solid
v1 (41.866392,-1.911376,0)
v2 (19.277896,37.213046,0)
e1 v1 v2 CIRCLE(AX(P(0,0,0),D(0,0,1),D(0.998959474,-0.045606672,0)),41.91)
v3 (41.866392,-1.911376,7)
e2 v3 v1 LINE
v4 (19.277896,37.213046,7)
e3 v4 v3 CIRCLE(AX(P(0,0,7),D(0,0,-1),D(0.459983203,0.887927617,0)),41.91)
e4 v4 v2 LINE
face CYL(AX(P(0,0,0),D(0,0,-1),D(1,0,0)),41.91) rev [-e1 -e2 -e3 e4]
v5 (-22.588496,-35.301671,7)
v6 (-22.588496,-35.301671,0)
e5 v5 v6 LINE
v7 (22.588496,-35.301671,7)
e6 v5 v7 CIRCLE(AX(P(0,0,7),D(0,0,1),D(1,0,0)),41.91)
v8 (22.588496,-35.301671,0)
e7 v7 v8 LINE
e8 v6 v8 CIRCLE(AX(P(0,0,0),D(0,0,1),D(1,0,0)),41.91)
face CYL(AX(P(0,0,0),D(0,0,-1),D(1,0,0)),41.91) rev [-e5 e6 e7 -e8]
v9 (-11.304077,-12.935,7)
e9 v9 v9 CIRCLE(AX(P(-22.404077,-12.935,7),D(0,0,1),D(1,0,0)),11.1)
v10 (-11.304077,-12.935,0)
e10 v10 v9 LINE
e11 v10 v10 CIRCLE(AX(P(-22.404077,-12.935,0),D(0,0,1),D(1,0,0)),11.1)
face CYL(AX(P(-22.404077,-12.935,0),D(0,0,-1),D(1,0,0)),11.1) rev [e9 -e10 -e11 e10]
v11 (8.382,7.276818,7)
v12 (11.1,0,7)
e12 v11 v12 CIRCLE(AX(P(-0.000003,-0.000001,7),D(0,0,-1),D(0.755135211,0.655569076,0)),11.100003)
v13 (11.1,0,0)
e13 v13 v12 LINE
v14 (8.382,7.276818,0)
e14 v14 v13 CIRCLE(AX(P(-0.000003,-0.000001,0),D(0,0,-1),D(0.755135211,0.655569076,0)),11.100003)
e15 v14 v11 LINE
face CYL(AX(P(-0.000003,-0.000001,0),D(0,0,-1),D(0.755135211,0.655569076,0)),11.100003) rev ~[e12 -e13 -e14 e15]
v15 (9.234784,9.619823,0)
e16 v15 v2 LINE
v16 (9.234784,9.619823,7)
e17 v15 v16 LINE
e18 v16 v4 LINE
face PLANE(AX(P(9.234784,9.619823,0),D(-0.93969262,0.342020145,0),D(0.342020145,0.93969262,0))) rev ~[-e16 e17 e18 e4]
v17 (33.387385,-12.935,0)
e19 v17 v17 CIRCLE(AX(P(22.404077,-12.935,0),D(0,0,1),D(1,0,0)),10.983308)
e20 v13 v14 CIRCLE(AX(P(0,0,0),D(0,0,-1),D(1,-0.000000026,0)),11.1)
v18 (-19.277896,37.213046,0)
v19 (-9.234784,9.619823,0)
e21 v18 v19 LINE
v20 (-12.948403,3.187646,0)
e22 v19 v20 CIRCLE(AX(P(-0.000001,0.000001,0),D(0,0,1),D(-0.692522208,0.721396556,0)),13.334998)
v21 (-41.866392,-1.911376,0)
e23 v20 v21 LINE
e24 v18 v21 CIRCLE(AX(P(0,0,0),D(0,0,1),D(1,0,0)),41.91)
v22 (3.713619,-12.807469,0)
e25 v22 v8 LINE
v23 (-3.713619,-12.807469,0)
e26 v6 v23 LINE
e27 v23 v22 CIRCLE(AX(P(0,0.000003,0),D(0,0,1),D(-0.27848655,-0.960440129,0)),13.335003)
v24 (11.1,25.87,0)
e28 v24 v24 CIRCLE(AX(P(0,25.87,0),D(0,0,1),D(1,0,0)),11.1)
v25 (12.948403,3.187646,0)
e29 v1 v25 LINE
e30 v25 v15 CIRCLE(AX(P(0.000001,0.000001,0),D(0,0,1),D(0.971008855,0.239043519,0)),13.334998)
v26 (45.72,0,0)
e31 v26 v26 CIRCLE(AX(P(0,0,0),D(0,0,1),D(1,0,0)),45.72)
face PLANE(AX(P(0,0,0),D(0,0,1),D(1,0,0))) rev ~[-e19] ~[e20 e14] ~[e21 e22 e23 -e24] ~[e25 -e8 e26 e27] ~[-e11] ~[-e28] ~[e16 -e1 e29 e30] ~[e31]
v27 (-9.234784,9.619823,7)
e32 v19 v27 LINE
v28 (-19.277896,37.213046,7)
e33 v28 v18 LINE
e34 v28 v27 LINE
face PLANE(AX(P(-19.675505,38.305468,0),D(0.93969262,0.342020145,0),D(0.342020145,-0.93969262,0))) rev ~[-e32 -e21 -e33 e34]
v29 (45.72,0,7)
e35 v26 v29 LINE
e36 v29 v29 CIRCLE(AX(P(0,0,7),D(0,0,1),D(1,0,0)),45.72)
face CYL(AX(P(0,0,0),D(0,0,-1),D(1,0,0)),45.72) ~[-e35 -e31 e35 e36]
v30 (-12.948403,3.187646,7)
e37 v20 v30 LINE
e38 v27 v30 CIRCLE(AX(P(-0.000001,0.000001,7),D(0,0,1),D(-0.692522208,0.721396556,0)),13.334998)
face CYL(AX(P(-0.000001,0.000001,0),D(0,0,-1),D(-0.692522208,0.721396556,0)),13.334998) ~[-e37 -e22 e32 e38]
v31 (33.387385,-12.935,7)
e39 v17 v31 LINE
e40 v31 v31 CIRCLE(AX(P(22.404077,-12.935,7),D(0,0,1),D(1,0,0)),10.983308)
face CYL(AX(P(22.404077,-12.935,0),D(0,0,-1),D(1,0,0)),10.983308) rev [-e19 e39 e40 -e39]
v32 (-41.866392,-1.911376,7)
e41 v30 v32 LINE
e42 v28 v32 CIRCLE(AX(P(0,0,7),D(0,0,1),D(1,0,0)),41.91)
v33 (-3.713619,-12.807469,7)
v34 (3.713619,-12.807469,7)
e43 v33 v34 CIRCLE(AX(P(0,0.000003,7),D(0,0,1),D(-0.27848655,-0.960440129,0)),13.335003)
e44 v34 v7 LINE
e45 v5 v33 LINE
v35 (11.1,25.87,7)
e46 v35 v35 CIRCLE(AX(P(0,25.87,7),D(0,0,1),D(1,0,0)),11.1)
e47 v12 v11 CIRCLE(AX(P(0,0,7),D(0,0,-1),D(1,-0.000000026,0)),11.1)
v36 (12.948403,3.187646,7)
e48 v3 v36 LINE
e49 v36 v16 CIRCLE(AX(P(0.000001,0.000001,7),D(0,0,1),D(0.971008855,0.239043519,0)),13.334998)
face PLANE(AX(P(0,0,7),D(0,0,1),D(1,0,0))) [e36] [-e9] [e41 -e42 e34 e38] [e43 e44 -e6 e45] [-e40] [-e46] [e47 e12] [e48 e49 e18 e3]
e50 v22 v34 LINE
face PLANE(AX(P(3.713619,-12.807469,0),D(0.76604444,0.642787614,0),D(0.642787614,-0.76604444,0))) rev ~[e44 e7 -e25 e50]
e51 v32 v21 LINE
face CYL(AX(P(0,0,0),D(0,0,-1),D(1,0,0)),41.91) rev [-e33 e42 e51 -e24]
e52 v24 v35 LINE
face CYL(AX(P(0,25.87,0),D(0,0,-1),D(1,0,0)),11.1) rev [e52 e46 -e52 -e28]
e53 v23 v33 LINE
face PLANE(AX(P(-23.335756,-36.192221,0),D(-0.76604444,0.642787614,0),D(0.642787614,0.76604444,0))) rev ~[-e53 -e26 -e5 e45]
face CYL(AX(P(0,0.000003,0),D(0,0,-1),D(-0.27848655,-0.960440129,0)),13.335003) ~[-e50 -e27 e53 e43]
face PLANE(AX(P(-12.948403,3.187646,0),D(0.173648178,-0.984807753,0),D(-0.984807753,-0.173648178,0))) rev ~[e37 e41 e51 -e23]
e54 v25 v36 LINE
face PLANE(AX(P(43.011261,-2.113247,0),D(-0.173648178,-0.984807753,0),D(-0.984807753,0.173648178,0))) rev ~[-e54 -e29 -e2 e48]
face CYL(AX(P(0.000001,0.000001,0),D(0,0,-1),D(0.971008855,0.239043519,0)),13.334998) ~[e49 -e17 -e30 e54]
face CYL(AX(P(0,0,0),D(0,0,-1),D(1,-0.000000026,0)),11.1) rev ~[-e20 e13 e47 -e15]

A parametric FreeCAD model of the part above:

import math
import FreeCAD as App
import Part
import Sketcher
Q = App.Units.Quantity

doc = App.newDocument("Part")
params = doc.addObject("Spreadsheet::Sheet", "Params")
for row, (alias, value) in enumerate([
    ("sketch1_radius", "0.5249999 in"),
    ("sketch1_radius2", "0.5249999 in"),
    ("sketch1_radius3", "0.5250001 in"),
    ("pad1_length", "7 mm"),
    ("sketch2_diameter", "3.6 in"),
    ("sketch2_diameter2", "3.3 in"),
    ("pad2_length", "7 mm"),
], start=1):
    params.set(f"A{row}", alias)
    params.set(f"B{row}", "=" + value)
    params.setAlias(f"B{row}", alias)

body = doc.addObject("PartDesign::Body", "Body")

sketch1 = body.newObject("Sketcher::SketchObject", "Sketch")
sketch1.AttachmentSupport = (doc.getObject("XY_Plane"), [""])
sketch1.MapMode = "FlatFace"
sketch1.addGeometry([
    Part.ArcOfCircle(Part.Circle(App.Vector(0.000001, 0.000001, 0), App.Vector(0, 0, 1), 13.334998), math.radians(13.830095), math.radians(46.169903)),
    Part.LineSegment(App.Vector(9.234784, 9.619823, 0), App.Vector(19.675505, 38.305468, 0)),
    Part.ArcOfCircle(Part.Circle(App.Vector(0, 4.290493, 0), App.Vector(0, 0, 1), 39.295598), math.radians(59.953342), math.radians(120.046658)),
    Part.LineSegment(App.Vector(-19.675505, 38.305468, 0), App.Vector(-9.234784, 9.619823, 0)),
    Part.ArcOfCircle(Part.Circle(App.Vector(-0.000001, 0.000001, 0), App.Vector(0, 0, 1), 13.334998), math.radians(133.830097), math.radians(166.169905)),
    Part.LineSegment(App.Vector(-12.948403, 3.187646, 0), App.Vector(-43.011261, -2.113247, 0)),
    Part.ArcOfCircle(Part.Circle(App.Vector(-3.715677, -2.145247, 0), App.Vector(0, 0, 1), 39.295597), math.radians(179.953342), math.radians(240.046659)),
    Part.LineSegment(App.Vector(-23.335756, -36.192221, 0), App.Vector(-3.713619, -12.807469, 0)),
    Part.ArcOfCircle(Part.Circle(App.Vector(0, 0.000003, 0), App.Vector(0, 0, 1), 13.335003), math.radians(-106.169898), math.radians(-73.830102)),
    Part.LineSegment(App.Vector(3.713619, -12.807469, 0), App.Vector(23.335756, -36.192221, 0)),
    Part.ArcOfCircle(Part.Circle(App.Vector(3.715677, -2.145247, 0), App.Vector(0, 0, 1), 39.295597), math.radians(-60.046659), math.radians(0.046658)),
    Part.LineSegment(App.Vector(43.011261, -2.113247, 0), App.Vector(12.948403, 3.187646, 0)),
    Part.Circle(App.Vector(-22.404077, -12.935, 0), App.Vector(0, 0, 1), 11.1),
    Part.Circle(App.Vector(22.404077, -12.935, 0), App.Vector(0, 0, 1), 10.983308),
    Part.ArcOfCircle(Part.Circle(App.Vector(0, 0, 0), App.Vector(0, 0, 1), 11.1), math.radians(40.962821), math.radians(359.999998)),
    Part.ArcOfCircle(Part.Circle(App.Vector(-0.000003, -0.000001, 0), App.Vector(0, 0, 1), 11.100003), math.radians(0.000005), math.radians(40.962814)),
    Part.Circle(App.Vector(0, 25.87, 0), App.Vector(0, 0, 1), 11.1),
], False)
sketch1.addConstraint([
    Sketcher.Constraint("Coincident", 0, 2, 1, 1),
    Sketcher.Constraint("Coincident", 1, 2, 2, 1),
    Sketcher.Constraint("Coincident", 2, 2, 3, 1),
    Sketcher.Constraint("Coincident", 3, 2, 4, 1),
    Sketcher.Constraint("Coincident", 4, 2, 5, 1),
    Sketcher.Constraint("Coincident", 5, 2, 6, 1),
    Sketcher.Constraint("Coincident", 6, 2, 7, 1),
    Sketcher.Constraint("Coincident", 7, 2, 8, 1),
    Sketcher.Constraint("Coincident", 8, 2, 9, 1),
    Sketcher.Constraint("Coincident", 9, 2, 10, 1),
    Sketcher.Constraint("Coincident", 10, 2, 11, 1),
    Sketcher.Constraint("Coincident", 11, 2, 0, 1),
    Sketcher.Constraint("Coincident", 14, 1, 15, 2),
    Sketcher.Constraint("Coincident", 15, 1, 14, 2),
    Sketcher.Constraint("Coincident", 0, 3, -1, 1),
    Sketcher.Constraint("Coincident", 4, 3, -1, 1),
    Sketcher.Constraint("Coincident", 8, 3, -1, 1),
    Sketcher.Constraint("Coincident", 14, 3, -1, 1),
    Sketcher.Constraint("PointOnObject", 2, 3, -2),
    Sketcher.Constraint("PointOnObject", 15, 3, -1),
    Sketcher.Constraint("PointOnObject", 16, 3, -2),
    Sketcher.Constraint("PointOnObject", 15, 1, -1),
    Sketcher.Constraint("Radius", 0, Q("0.5249999 in")),
    Sketcher.Constraint("Radius", 4, Q("0.5249999 in")),
    Sketcher.Constraint("Radius", 8, Q("0.5250001 in")),
    Sketcher.Constraint("Diameter", 12, 22.2),
    Sketcher.Constraint("Diameter", 16, 22.2),
    Sketcher.Constraint("DistanceX", -1, 1, 14, 1, Q("0.33 in")),
    Sketcher.Constraint("Radius", 14, 11.1),
    Sketcher.Constraint("Diameter", 13, 21.966616),
    Sketcher.Constraint("Radius", 2, 39.295598),
    Sketcher.Constraint("Radius", 6, 39.295597),
    Sketcher.Constraint("Radius", 10, 39.295597),
    Sketcher.Constraint("DistanceY", 12, 3, -1, 1, 12.935),
    Sketcher.Constraint("DistanceY", 13, 3, -1, 1, 12.935),
    Sketcher.Constraint("DistanceY", -1, 1, 16, 3, 25.87),
    Sketcher.Constraint("DistanceX", 12, 3, 6, 3, 18.6884),
    Sketcher.Constraint("DistanceX", 10, 3, 13, 3, 18.6884),
    Sketcher.Constraint("DistanceX", 4, 2, 15, 3, 12.9484),
    Sketcher.Constraint("DistanceY", 6, 3, 5, 2, 0.032),
    Sketcher.Constraint("DistanceY", 10, 3, 10, 2, 0.032),
    Sketcher.Constraint("DistanceX", 0, 3, 11, 2, 12.948402),
    Sketcher.Constraint("DistanceY", -1, 1, 2, 2, 38.305468),
    Sketcher.Constraint("DistanceX", 5, 2, -1, 1, 43.011261),
    Sketcher.Constraint("DistanceY", 6, 2, -1, 1, 36.192221),
    Sketcher.Constraint("DistanceX", 7, 2, -1, 1, 3.713619),
    Sketcher.Constraint("DistanceX", -1, 1, 8, 2, 3.713619),
    Sketcher.Constraint("DistanceY", 9, 2, -1, 1, 36.192221),
    Sketcher.Constraint("DistanceX", -1, 1, 10, 2, 43.011261),
    Sketcher.Constraint("DistanceY", 6, 3, 4, 3, 2.145248),
    Sketcher.Constraint("DistanceY", 6, 3, 2, 3, 6.43574),
    Sketcher.Constraint("DistanceY", 10, 3, 0, 3, 2.145248),
    Sketcher.Constraint("DistanceY", 2, 3, 0, 2, 5.32933),
    Sketcher.Constraint("DistanceX", 0, 2, 1, 2, 10.440721),
    Sketcher.Constraint("DistanceY", 2, 3, 3, 2, 5.32933),
])
sketch1.setExpression("Constraints[22]", "Params.sketch1_radius")
sketch1.setExpression("Constraints[23]", "Params.sketch1_radius2")
sketch1.setExpression("Constraints[24]", "Params.sketch1_radius3")
pad1 = body.newObject("PartDesign::Pad", "Pad")
pad1.Profile = sketch1
pad1.setExpression("Length", "Params.pad1_length")

sketch2 = body.newObject("Sketcher::SketchObject", "Sketch001")
sketch2.AttachmentSupport = (doc.getObject("XY_Plane"), [""])
sketch2.MapMode = "FlatFace"
sketch2.addGeometry([
    Part.Circle(App.Vector(0, 0, 0), App.Vector(0, 0, 1), 46),
    Part.Circle(App.Vector(0, 0, 0), App.Vector(0, 0, 1), 42),
], False)
sketch2.addConstraint([
    Sketcher.Constraint("Coincident", 0, 3, -1, 1),
    Sketcher.Constraint("Coincident", 1, 3, -1, 1),
    Sketcher.Constraint("Diameter", 0, Q("3.6 in")),
    Sketcher.Constraint("Diameter", 1, Q("3.3 in")),
])
sketch2.setExpression("Constraints[2]", "Params.sketch2_diameter")
sketch2.setExpression("Constraints[3]", "Params.sketch2_diameter2")
pad2 = body.newObject("PartDesign::Pad", "Pad001")
pad2.Profile = sketch2
pad2.setExpression("Length", "Params.pad2_length")

doc.recompute()
